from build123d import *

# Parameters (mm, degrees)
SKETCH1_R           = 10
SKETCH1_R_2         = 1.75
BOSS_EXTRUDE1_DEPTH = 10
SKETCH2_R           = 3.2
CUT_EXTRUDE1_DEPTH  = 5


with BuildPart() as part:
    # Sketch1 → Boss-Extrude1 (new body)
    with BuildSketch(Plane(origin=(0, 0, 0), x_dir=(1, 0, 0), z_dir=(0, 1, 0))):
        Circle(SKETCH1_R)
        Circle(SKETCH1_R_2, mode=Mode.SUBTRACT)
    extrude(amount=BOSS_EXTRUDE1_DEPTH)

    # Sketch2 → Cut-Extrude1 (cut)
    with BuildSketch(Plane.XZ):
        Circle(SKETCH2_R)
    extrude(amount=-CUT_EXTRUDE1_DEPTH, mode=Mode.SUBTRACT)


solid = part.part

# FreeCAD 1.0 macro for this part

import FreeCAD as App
import Part
import Sketcher
from FreeCAD import Vector
Q = App.Units.Quantity

doc = App.newDocument("Part")
body = doc.addObject("PartDesign::Body", "Body")

sketch1 = body.newObject("Sketcher::SketchObject", "Sketch")
sketch1.AttachmentSupport = (doc.getObject("XZ_Plane"), [""])
sketch1.MapMode = "FlatFace"
sketch1.addGeometry([
    Part.Circle(Vector(0, 0, 0), Vector(0, 0, 1), 10),
    Part.Circle(Vector(0, 0, 0), Vector(0, 0, 1), 1.8),
], False)
sketch1.addConstraint([
    Sketcher.Constraint("Coincident", 0, 3, -1, 1),
    Sketcher.Constraint("Coincident", 1, 3, -1, 1),
    Sketcher.Constraint("Diameter", 0, Q("20 mm")),
    Sketcher.Constraint("Diameter", 1, Q("3.5 mm")),
])
pad1 = body.newObject("PartDesign::Pad", "Pad")
pad1.Profile = sketch1
pad1.Length = 10
pad1.Reversed = True

sketch2 = body.newObject("Sketcher::SketchObject", "Sketch001")
sketch2.AttachmentSupport = (doc.getObject("XZ_Plane"), [""])
sketch2.MapMode = "FlatFace"
sketch2.addGeometry(Part.Circle(Vector(0, 0, 0), Vector(0, 0, 1), 3.2), False)
sketch2.addConstraint([
    Sketcher.Constraint("Coincident", 0, 3, -1, 1),
    Sketcher.Constraint("Diameter", 0, Q("6.4 mm")),
])
pocket1 = body.newObject("PartDesign::Pocket", "Pocket")
pocket1.Profile = sketch2
pocket1.Length = 5

doc.recompute()
